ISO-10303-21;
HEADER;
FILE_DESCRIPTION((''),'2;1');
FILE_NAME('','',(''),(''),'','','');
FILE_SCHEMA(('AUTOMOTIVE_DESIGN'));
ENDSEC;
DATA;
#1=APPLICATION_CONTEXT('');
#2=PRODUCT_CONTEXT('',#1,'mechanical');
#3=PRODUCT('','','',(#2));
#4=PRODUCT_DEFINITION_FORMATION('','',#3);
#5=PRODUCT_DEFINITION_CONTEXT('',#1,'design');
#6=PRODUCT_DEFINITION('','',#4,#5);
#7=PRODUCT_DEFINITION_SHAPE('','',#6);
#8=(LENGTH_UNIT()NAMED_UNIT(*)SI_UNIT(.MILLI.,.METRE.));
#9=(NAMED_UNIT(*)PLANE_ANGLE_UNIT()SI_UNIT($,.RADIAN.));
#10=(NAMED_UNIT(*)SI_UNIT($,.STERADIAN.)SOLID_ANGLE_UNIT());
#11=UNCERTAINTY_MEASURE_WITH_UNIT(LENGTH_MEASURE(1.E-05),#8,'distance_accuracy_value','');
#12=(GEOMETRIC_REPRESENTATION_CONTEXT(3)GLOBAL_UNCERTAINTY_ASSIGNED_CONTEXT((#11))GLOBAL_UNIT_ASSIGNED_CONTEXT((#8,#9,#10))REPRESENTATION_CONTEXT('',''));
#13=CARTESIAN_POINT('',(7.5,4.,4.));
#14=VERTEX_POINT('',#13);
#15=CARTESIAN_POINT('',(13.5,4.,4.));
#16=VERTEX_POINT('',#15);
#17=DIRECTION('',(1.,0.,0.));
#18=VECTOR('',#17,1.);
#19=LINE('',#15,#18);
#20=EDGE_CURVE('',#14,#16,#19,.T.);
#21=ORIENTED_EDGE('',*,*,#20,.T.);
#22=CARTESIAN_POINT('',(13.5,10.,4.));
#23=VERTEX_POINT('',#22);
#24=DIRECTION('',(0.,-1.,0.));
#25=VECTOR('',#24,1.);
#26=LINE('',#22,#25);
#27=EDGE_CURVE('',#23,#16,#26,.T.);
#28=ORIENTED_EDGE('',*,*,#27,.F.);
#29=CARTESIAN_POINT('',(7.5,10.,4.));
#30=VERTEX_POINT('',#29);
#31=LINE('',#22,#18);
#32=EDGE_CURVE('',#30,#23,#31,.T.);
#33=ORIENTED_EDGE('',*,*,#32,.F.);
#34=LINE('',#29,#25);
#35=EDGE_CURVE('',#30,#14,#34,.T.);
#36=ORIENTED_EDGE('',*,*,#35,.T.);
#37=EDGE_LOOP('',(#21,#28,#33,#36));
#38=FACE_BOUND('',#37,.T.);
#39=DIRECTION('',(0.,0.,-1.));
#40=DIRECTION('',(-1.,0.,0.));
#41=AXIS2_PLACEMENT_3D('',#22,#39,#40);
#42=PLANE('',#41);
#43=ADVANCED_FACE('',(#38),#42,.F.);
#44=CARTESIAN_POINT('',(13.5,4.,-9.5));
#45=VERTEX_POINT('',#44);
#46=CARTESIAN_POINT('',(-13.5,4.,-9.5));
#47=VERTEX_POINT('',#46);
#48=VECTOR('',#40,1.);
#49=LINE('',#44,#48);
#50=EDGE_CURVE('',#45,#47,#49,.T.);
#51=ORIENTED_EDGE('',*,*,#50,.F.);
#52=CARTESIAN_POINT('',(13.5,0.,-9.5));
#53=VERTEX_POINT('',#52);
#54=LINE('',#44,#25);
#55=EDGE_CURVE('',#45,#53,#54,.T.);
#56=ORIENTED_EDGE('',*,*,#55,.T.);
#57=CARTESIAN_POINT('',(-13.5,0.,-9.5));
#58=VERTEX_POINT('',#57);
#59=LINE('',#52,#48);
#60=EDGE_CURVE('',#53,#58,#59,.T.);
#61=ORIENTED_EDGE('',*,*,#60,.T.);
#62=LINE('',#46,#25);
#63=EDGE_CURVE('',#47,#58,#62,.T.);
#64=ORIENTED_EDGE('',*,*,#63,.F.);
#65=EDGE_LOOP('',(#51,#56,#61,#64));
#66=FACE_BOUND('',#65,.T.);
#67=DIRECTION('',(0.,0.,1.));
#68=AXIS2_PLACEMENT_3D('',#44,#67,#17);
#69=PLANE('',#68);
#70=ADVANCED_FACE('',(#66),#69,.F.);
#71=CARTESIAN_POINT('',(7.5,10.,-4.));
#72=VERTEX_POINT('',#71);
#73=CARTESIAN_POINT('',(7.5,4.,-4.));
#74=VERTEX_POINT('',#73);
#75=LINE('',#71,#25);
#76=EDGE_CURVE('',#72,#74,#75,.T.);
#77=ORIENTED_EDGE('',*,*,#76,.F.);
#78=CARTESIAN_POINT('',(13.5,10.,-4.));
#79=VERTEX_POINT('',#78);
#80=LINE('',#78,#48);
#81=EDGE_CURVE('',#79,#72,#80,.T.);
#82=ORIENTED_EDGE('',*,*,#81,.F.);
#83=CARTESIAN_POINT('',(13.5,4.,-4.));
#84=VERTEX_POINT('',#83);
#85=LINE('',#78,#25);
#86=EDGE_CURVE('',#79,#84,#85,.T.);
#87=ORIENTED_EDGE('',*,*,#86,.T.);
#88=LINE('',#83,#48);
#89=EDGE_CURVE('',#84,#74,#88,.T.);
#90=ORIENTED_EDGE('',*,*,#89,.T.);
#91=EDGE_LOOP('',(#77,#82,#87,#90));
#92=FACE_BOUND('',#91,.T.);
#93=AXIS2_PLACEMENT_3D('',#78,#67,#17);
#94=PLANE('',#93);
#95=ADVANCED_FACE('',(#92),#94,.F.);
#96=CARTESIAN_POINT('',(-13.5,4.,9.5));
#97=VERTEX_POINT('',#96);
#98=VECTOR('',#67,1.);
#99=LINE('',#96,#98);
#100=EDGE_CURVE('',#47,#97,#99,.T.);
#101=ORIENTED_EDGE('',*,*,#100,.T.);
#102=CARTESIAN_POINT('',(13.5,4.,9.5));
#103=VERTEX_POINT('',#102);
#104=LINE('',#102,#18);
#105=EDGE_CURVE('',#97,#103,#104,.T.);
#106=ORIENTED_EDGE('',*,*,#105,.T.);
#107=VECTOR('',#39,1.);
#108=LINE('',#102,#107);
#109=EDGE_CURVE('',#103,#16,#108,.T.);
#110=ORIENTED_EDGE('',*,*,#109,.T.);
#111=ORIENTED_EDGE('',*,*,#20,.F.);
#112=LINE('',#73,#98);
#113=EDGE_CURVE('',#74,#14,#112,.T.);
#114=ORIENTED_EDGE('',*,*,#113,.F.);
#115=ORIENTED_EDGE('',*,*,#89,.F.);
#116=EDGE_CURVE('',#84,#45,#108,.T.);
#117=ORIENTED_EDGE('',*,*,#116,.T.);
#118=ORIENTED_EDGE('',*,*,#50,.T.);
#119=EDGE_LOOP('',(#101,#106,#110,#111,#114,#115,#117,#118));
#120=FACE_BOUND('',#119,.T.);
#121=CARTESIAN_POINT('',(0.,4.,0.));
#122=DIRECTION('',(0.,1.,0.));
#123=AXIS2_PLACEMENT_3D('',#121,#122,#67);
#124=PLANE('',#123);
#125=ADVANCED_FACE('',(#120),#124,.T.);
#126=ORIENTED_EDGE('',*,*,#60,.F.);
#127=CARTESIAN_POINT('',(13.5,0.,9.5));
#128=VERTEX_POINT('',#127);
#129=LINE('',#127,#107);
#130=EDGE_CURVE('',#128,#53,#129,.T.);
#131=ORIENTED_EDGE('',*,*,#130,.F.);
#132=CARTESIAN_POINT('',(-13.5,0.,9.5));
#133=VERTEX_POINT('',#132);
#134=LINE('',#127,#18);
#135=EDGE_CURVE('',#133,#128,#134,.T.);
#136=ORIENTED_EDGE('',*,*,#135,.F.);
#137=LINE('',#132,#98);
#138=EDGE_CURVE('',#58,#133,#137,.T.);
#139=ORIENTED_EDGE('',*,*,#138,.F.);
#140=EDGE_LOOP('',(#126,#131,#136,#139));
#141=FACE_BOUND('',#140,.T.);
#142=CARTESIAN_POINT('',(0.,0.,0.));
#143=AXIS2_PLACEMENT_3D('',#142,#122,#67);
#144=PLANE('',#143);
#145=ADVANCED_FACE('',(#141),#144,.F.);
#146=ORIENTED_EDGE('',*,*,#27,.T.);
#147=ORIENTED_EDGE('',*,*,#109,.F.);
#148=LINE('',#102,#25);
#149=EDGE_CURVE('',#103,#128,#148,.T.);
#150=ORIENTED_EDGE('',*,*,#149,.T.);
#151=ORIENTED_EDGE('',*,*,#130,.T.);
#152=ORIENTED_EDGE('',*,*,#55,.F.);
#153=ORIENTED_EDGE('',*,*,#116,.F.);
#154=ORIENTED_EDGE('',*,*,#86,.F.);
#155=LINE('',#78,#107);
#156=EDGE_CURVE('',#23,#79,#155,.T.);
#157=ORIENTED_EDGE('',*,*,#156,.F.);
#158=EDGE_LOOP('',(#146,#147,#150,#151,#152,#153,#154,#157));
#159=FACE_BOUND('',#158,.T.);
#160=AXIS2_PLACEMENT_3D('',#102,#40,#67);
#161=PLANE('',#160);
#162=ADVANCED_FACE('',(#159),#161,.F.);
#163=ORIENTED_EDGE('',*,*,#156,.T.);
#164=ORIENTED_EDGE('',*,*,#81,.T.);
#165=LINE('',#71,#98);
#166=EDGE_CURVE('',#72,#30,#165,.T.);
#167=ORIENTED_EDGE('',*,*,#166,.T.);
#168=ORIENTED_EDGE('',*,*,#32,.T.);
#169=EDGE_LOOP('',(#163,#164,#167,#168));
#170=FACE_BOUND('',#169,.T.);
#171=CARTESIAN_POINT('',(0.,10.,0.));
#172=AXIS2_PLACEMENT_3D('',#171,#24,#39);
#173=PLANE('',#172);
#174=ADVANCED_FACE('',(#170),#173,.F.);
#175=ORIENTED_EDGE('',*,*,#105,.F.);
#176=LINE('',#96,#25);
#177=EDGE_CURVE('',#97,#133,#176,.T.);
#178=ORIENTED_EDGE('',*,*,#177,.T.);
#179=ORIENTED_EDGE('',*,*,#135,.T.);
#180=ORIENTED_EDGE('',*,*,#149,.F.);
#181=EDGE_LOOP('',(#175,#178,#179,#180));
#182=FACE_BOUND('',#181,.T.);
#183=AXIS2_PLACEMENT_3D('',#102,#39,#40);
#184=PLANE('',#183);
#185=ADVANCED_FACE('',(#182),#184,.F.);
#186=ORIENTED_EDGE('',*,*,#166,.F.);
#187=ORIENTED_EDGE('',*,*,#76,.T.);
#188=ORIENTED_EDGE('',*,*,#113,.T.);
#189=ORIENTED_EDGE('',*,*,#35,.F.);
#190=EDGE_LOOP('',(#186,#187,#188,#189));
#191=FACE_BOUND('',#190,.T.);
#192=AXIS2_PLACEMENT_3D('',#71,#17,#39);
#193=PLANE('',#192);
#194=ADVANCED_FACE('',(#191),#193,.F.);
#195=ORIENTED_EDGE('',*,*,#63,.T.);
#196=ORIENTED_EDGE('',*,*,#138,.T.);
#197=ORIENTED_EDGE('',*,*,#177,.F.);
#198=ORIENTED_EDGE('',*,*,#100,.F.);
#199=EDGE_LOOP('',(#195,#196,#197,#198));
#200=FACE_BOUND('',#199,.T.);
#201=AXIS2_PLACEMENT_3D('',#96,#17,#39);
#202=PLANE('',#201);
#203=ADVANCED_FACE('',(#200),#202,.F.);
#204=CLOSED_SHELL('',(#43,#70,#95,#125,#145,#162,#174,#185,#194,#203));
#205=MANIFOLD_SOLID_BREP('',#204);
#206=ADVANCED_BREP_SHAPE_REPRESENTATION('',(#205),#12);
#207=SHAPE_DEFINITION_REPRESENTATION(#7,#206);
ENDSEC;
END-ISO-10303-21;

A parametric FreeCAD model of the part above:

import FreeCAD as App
import Part
import Sketcher

V = App.Vector
Q = App.Units.Quantity

doc = App.newDocument("Part")
params = doc.addObject("Spreadsheet::Sheet", "Params")
for row, (alias, value) in enumerate([
    ("sketch1_width", "27 mm"),
    ("sketch1_height", "19 mm"),
    ("pad1_length", "4 mm"),
    ("sketch2_width", "6 mm"),
    ("sketch2_height", "8 mm"),
    ("pad2_length", "6 mm"),
], start=1):
    params.set(f"A{row}", alias)
    params.set(f"B{row}", "=" + value)
    params.setAlias(f"B{row}", alias)

body = doc.addObject("PartDesign::Body", "Body")

sketch1 = body.newObject("Sketcher::SketchObject", "Sketch")
sketch1.AttachmentSupport = (doc.getObject("XZ_Plane"), [""])
sketch1.MapMode = "FlatFace"
sketch1.addGeometry([
    Part.LineSegment(V(-14, -10, 0), V(-14, 10, 0)),
    Part.LineSegment(V(-14, 10, 0), V(14, 10, 0)),
    Part.LineSegment(V(14, 10, 0), V(14, -10, 0)),
    Part.LineSegment(V(14, -10, 0), V(-14, -10, 0)),
], False)
sketch1.addConstraint([
    Sketcher.Constraint("Coincident", 0, 2, 1, 1),
    Sketcher.Constraint("Coincident", 1, 2, 2, 1),
    Sketcher.Constraint("Coincident", 2, 2, 3, 1),
    Sketcher.Constraint("Coincident", 3, 2, 0, 1),
    Sketcher.Constraint("Vertical", 0),
    Sketcher.Constraint("Horizontal", 1),
    Sketcher.Constraint("Vertical", 2),
    Sketcher.Constraint("Horizontal", 3),
    Sketcher.Constraint("Symmetric", 0, 2, 2, 2, -1, 1),
    Sketcher.Constraint("DistanceX", 1, 1, 1, 2, Q("27 mm")),
    Sketcher.Constraint("DistanceY", 0, 1, 0, 2, Q("19 mm")),
])
sketch1.setExpression("Constraints[9]", "Params.sketch1_width")
sketch1.setExpression("Constraints[10]", "Params.sketch1_height")
pad1 = body.newObject("PartDesign::Pad", "Pad")
pad1.Profile = sketch1
pad1.setExpression("Length", "Params.pad1_length")
pad1.Reversed = True

sketch2 = body.newObject("Sketcher::SketchObject", "Sketch001")
sketch2.AttachmentSupport = (doc.getObject("XZ_Plane"), [""])
sketch2.MapMode = "FlatFace"
sketch2.AttachmentOffset = App.Placement(V(0, 0, -4), App.Rotation())
sketch2.addGeometry([
    Part.LineSegment(V(8, -4, 0), V(8, 4, 0)),
    Part.LineSegment(V(8, 4, 0), V(14, 4, 0)),
    Part.LineSegment(V(14, 4, 0), V(14, -4, 0)),
    Part.LineSegment(V(14, -4, 0), V(8, -4, 0)),
], False)
sketch2.addConstraint([
    Sketcher.Constraint("Coincident", 0, 2, 1, 1),
    Sketcher.Constraint("Coincident", 1, 2, 2, 1),
    Sketcher.Constraint("Coincident", 2, 2, 3, 1),
    Sketcher.Constraint("Coincident", 3, 2, 0, 1),
    Sketcher.Constraint("Vertical", 0),
    Sketcher.Constraint("Horizontal", 1),
    Sketcher.Constraint("Vertical", 2),
    Sketcher.Constraint("Horizontal", 3),
    Sketcher.Constraint("DistanceX", 1, 1, 1, 2, Q("6 mm")),
    Sketcher.Constraint("DistanceY", 0, 1, 0, 2, Q("8 mm")),
    Sketcher.Constraint("DistanceY", -1, 1, 0, 2, Q("4 mm")),
    Sketcher.Constraint("DistanceX", -1, 1, 0, 2, Q("7.5 mm")),
])
sketch2.setExpression("Constraints[8]", "Params.sketch2_width")
sketch2.setExpression("Constraints[9]", "Params.sketch2_height")
pad2 = body.newObject("PartDesign::Pad", "Pad001")
pad2.Profile = sketch2
pad2.setExpression("Length", "Params.pad2_length")
pad2.Reversed = True

doc.recompute()
